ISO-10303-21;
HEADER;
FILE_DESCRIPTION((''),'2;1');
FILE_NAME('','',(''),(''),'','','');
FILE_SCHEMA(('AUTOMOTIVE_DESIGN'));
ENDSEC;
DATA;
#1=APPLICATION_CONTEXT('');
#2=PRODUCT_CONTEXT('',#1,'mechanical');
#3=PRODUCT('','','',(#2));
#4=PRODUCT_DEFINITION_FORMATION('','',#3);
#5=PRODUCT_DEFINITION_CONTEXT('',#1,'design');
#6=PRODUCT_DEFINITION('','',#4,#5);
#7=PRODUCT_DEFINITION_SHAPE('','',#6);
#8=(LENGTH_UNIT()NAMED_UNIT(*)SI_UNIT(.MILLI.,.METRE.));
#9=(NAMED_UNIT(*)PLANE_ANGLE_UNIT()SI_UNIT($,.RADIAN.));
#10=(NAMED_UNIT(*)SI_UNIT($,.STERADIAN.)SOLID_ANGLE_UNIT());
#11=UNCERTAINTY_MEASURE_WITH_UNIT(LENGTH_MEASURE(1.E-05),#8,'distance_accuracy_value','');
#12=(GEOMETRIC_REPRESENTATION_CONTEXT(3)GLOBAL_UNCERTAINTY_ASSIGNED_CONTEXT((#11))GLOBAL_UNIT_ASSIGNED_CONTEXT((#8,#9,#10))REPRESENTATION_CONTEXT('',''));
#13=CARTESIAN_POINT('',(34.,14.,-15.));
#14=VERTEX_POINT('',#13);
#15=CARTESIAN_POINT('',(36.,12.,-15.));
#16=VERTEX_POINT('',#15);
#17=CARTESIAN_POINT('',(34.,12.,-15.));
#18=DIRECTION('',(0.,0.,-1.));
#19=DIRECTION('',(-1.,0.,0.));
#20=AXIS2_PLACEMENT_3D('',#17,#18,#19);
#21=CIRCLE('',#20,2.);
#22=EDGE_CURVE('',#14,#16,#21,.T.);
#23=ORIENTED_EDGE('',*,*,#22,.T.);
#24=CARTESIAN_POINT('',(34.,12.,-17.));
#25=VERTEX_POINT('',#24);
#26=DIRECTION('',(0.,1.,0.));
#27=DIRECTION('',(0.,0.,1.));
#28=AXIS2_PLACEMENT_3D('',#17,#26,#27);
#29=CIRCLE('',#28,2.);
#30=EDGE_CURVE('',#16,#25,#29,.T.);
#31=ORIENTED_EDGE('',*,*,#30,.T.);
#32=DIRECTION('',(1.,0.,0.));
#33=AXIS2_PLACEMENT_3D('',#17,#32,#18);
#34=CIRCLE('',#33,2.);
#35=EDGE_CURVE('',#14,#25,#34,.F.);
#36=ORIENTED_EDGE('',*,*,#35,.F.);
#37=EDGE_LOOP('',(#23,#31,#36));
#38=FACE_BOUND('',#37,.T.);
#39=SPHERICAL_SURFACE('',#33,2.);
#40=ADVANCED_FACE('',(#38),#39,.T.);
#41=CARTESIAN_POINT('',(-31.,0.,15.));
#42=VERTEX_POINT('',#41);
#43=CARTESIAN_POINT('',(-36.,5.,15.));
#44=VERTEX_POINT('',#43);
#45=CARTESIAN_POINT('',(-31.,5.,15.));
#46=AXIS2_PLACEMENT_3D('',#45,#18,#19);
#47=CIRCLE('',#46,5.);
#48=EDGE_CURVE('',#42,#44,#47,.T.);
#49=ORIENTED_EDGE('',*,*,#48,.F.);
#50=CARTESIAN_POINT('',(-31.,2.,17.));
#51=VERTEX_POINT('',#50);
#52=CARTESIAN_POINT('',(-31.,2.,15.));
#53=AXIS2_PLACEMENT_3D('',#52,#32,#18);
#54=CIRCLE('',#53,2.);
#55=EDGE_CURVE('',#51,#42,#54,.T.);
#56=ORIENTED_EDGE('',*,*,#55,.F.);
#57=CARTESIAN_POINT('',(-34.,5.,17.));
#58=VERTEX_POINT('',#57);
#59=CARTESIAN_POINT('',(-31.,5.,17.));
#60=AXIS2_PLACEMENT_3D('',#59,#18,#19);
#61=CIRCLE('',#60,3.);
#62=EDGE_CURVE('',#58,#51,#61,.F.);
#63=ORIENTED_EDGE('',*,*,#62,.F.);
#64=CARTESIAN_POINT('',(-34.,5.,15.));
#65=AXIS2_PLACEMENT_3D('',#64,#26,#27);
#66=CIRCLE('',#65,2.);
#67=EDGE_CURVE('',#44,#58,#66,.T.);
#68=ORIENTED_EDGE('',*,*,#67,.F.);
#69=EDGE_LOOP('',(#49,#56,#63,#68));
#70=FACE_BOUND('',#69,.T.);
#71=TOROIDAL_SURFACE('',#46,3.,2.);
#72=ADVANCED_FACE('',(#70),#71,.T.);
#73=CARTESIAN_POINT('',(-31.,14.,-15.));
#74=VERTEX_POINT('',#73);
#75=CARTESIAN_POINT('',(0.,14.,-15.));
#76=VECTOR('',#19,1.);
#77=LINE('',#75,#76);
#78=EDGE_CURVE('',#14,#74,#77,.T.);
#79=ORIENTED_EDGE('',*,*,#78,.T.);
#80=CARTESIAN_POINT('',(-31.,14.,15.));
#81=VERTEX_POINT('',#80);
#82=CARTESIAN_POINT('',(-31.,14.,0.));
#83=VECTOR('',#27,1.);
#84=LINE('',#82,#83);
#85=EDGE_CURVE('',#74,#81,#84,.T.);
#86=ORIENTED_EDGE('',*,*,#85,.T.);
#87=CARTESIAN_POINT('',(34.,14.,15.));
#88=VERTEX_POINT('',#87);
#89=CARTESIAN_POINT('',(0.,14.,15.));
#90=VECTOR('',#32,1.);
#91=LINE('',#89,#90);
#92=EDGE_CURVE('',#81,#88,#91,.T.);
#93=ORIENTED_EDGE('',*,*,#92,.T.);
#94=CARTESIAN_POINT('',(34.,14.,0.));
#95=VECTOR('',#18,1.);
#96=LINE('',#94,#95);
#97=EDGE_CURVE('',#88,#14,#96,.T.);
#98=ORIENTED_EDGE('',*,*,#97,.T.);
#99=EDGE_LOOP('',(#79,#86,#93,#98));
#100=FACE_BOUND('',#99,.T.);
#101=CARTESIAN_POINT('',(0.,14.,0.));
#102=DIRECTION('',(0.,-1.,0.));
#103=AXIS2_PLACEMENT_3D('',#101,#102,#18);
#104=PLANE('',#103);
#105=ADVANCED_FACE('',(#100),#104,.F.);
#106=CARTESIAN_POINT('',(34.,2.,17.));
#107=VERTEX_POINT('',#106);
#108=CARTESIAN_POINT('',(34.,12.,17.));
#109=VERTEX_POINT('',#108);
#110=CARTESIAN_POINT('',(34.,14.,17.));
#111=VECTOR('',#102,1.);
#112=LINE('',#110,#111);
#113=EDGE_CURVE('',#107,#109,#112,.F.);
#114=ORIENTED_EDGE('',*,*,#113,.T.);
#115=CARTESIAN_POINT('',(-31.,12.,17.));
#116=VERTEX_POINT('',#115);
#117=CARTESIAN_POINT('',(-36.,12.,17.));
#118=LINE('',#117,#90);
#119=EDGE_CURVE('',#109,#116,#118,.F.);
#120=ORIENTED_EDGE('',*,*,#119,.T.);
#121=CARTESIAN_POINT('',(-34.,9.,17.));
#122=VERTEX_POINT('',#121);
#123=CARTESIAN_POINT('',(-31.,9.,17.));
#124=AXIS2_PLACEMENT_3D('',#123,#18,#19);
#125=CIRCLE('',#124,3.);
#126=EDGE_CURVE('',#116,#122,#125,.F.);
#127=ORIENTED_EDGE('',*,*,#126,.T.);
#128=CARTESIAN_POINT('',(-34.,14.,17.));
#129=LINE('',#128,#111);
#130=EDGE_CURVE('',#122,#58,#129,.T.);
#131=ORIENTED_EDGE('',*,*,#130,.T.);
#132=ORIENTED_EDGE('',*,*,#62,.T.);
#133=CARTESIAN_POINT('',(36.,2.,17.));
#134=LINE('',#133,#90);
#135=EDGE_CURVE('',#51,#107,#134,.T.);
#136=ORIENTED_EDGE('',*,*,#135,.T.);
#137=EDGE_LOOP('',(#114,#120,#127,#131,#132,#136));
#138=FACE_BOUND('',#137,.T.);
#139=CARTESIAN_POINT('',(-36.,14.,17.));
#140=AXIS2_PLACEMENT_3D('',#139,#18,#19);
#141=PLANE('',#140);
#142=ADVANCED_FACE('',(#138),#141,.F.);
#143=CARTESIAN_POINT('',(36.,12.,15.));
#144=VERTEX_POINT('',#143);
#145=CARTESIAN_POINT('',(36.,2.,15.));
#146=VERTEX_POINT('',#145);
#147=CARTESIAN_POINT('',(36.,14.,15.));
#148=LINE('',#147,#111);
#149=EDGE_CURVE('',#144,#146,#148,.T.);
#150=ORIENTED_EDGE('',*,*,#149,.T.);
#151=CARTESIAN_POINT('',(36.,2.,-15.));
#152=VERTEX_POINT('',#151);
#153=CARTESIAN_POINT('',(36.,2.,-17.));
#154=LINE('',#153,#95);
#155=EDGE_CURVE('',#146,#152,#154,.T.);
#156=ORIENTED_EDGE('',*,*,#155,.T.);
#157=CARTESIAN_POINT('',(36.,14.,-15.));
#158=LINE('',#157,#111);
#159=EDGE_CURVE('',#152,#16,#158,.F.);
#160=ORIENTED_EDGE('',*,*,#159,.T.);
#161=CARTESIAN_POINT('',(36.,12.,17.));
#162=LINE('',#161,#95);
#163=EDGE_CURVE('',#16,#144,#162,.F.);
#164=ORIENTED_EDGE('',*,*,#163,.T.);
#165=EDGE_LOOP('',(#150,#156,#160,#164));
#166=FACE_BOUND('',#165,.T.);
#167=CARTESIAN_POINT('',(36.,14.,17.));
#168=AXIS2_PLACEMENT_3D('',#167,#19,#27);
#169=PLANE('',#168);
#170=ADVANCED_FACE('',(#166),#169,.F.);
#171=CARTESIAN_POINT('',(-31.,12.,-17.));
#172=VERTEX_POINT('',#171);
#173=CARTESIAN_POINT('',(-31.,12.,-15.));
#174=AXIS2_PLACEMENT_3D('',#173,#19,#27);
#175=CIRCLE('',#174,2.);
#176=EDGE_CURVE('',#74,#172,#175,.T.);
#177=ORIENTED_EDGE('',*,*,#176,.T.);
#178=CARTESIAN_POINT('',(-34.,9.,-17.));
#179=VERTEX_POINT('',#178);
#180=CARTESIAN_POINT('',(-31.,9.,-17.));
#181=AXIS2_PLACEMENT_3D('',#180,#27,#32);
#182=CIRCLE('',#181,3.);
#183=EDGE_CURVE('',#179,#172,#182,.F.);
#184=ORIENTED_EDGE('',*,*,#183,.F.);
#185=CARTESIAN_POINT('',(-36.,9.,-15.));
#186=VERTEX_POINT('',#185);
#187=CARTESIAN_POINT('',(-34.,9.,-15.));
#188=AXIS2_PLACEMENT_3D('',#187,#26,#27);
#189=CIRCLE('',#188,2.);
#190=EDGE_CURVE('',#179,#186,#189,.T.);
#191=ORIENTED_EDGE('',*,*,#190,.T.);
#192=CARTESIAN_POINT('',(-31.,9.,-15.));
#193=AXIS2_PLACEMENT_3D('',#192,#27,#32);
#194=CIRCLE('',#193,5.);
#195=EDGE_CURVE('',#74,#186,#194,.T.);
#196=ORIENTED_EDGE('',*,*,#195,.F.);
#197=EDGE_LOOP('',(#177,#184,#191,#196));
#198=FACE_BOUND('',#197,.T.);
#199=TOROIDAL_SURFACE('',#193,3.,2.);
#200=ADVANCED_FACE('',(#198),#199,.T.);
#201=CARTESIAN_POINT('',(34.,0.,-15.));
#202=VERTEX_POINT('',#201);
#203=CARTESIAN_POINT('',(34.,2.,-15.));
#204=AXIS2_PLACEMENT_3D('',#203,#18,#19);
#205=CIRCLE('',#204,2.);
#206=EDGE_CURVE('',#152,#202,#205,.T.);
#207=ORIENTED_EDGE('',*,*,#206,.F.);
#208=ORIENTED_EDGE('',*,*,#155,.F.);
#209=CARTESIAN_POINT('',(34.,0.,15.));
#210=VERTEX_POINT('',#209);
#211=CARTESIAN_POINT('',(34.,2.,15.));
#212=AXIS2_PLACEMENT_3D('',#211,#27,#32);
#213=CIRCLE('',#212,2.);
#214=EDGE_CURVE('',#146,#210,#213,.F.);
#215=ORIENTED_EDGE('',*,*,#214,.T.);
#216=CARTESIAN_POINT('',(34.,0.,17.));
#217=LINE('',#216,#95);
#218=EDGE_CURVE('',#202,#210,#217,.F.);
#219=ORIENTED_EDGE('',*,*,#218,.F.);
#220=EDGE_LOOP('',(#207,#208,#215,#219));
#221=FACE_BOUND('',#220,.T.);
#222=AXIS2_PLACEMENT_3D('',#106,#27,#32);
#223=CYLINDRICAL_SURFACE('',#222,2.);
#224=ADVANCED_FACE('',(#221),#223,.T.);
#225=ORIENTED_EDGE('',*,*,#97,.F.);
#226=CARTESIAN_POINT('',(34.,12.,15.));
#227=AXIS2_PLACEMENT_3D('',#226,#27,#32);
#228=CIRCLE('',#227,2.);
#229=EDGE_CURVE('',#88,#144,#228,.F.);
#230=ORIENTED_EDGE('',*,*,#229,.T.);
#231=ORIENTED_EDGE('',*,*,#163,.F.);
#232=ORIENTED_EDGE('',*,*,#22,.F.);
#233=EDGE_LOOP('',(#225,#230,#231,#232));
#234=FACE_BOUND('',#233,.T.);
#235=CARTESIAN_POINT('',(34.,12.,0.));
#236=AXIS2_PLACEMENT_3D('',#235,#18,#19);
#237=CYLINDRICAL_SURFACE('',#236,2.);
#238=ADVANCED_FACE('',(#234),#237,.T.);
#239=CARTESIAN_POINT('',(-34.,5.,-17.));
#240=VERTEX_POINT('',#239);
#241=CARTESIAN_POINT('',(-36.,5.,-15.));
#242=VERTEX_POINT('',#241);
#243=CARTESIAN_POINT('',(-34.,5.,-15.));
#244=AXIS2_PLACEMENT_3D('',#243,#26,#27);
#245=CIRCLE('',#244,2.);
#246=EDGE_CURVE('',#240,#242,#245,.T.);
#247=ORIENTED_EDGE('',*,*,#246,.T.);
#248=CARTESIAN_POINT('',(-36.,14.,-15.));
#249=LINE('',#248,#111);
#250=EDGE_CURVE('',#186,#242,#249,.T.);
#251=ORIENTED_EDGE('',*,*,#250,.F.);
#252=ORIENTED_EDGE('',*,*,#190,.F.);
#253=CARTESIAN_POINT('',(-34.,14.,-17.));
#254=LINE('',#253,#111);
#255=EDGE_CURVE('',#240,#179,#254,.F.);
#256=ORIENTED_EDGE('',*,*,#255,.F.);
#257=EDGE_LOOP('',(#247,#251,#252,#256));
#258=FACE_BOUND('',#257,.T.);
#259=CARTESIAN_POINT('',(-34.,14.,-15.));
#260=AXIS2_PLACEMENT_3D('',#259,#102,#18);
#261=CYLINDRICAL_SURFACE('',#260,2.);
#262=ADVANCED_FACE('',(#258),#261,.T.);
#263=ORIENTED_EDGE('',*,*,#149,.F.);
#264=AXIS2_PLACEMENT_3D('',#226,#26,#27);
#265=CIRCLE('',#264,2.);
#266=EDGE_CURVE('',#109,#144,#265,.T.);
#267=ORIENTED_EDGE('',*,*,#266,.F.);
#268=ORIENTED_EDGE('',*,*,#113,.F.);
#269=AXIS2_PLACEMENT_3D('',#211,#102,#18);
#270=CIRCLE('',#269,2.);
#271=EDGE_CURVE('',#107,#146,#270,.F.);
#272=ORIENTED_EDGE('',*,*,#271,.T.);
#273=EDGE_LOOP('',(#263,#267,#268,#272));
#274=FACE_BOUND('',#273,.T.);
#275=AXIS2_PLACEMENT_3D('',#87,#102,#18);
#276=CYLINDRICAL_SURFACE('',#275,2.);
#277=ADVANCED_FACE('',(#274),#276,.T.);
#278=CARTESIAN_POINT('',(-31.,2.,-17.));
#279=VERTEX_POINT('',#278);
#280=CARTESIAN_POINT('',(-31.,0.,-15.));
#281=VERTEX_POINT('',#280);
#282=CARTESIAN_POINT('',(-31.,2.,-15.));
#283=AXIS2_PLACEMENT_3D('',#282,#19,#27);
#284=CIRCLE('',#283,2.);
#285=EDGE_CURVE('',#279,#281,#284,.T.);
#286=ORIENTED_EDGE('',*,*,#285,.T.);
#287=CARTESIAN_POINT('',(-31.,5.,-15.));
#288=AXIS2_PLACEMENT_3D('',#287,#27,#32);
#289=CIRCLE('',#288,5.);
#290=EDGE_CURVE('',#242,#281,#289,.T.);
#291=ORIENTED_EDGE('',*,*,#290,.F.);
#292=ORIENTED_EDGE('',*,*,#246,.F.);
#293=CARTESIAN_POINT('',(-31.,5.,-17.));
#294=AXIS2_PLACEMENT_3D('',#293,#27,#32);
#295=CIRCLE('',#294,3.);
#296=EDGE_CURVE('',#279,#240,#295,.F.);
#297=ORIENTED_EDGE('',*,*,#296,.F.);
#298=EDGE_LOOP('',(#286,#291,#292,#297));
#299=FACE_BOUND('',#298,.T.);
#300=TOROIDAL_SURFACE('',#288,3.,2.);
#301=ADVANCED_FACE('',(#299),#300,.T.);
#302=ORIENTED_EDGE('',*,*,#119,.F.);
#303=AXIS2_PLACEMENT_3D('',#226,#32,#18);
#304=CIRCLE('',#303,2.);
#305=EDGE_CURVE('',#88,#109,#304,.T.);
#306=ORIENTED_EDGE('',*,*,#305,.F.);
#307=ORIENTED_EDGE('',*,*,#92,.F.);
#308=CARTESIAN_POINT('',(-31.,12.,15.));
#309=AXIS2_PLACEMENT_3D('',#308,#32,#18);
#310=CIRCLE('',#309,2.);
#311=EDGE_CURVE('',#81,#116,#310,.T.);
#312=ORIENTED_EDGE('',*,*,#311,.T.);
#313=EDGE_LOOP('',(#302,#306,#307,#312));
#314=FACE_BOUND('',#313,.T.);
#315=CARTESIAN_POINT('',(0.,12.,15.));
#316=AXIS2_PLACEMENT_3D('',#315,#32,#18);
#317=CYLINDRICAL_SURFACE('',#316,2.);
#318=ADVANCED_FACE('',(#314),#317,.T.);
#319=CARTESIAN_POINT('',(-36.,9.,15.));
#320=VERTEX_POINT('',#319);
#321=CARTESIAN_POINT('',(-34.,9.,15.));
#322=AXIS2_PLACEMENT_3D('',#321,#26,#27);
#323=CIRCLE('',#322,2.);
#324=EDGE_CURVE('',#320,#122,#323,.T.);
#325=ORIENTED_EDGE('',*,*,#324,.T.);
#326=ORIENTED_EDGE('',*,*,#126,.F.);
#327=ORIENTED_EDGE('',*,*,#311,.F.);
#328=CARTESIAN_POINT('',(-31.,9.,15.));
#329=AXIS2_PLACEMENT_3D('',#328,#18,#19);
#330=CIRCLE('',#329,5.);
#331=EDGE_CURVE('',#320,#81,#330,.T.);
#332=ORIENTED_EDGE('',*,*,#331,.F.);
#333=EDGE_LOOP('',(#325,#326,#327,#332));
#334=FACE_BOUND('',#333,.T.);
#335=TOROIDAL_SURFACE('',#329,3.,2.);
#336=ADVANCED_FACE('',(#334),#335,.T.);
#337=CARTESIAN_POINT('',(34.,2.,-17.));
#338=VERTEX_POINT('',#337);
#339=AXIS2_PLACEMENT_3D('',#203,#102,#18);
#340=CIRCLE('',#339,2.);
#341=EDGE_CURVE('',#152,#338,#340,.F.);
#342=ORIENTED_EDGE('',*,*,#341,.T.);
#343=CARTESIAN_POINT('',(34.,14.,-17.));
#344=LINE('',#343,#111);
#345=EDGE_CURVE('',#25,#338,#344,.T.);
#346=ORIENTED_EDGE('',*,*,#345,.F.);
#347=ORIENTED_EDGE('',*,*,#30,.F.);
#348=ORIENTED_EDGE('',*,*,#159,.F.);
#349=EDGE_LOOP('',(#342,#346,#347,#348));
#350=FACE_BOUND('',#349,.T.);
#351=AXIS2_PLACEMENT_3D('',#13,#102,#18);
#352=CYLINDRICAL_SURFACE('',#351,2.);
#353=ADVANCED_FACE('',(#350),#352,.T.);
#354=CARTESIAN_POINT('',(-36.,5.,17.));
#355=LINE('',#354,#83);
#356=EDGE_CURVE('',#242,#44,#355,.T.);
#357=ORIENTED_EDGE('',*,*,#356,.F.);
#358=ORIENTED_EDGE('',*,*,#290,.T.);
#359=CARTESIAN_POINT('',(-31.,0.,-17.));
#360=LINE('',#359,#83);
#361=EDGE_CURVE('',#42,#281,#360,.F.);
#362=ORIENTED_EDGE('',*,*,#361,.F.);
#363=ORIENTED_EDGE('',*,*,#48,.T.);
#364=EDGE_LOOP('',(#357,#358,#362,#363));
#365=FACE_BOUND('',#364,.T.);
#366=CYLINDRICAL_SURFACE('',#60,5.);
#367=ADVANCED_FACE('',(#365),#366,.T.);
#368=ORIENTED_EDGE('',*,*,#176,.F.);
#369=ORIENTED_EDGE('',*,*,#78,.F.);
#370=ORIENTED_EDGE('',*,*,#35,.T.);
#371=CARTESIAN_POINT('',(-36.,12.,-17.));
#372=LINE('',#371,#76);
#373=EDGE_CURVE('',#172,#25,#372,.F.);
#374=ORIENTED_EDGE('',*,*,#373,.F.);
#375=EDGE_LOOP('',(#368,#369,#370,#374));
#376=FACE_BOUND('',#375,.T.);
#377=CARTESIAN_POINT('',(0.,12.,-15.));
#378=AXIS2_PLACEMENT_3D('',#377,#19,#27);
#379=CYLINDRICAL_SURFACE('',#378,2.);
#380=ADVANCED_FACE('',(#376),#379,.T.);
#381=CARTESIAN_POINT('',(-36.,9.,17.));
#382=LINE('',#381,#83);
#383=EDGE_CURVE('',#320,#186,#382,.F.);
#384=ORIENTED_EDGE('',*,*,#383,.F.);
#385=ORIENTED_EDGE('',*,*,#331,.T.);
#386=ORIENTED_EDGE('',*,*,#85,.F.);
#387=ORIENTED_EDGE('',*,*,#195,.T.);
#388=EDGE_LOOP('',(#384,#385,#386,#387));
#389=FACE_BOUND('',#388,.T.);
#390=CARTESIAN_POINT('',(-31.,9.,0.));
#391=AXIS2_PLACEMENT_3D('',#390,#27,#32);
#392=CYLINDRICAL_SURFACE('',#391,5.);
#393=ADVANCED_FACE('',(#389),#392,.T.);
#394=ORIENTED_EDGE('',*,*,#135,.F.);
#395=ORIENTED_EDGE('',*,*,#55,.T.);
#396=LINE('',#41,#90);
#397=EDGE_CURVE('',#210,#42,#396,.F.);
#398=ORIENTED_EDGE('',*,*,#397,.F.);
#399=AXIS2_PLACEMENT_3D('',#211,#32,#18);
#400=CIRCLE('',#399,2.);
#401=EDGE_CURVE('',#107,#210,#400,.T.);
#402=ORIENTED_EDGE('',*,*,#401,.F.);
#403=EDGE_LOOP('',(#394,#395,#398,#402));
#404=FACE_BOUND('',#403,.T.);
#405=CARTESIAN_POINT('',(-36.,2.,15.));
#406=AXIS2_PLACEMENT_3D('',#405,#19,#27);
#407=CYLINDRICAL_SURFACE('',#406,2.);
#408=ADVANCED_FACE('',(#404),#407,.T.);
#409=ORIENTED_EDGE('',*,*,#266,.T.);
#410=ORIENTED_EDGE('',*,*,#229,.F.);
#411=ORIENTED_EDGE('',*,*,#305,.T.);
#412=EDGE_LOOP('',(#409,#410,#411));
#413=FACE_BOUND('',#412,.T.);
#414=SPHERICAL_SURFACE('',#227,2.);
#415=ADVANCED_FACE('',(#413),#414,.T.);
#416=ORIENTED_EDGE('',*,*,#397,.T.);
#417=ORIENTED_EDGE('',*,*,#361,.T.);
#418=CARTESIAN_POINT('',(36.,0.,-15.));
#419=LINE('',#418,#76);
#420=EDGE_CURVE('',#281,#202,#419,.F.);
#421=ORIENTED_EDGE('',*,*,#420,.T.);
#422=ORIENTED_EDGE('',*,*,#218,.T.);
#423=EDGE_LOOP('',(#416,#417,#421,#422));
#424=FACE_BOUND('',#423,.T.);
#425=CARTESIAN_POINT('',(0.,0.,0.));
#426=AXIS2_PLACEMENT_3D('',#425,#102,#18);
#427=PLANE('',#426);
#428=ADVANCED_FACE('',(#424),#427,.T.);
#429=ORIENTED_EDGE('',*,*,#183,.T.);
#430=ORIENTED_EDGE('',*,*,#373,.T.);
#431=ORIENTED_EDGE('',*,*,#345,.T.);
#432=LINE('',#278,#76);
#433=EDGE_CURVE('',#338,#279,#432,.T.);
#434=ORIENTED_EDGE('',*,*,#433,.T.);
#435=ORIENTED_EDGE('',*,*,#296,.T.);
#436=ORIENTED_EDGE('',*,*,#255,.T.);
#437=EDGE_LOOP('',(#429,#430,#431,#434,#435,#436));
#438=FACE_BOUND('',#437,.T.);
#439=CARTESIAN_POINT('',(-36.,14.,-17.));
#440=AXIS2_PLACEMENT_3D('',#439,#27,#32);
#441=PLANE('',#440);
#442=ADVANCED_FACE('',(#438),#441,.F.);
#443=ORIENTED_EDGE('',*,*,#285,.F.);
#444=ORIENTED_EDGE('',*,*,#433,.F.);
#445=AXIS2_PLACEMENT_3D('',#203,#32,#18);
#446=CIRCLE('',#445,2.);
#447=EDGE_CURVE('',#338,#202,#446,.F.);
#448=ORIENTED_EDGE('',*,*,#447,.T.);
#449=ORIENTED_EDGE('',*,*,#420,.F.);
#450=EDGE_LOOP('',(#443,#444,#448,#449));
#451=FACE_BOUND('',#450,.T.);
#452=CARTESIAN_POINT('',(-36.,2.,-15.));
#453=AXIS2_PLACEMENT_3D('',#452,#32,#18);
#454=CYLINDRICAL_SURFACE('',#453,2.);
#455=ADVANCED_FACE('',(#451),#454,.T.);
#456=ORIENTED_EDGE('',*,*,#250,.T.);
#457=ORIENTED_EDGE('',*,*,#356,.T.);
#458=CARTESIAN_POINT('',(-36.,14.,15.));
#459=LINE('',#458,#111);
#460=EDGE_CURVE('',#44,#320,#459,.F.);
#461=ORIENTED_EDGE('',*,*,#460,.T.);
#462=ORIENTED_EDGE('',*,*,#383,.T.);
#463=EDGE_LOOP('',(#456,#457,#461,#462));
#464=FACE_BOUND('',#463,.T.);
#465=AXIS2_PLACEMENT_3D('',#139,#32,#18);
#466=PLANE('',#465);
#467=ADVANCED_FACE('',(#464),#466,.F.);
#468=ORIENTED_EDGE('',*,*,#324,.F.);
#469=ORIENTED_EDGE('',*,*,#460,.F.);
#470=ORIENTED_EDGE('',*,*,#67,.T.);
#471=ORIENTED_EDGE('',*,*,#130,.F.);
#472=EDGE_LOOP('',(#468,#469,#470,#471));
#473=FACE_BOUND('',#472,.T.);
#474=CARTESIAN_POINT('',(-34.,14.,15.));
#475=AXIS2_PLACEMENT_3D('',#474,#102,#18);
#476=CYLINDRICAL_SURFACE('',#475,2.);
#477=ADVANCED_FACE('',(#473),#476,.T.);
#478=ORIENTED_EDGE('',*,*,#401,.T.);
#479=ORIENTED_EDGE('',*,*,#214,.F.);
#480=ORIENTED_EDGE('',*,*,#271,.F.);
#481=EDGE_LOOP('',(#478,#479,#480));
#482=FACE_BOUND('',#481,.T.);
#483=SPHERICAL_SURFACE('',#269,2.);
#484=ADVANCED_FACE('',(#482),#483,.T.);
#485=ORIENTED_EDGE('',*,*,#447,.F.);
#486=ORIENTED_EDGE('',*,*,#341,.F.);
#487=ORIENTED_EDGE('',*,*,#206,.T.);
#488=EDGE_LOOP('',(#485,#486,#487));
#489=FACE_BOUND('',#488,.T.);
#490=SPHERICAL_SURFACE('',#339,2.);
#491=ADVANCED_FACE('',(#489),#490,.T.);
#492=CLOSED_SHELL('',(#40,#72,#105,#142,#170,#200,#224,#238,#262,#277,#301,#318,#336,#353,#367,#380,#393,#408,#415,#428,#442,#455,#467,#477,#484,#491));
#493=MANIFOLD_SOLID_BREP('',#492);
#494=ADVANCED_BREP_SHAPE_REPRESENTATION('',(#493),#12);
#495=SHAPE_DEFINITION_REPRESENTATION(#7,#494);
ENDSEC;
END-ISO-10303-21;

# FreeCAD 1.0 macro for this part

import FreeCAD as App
import Part
import Sketcher
from FreeCAD import Vector


def edges_at(feature, points):
    """Names of the edges that pass closest to the given points."""
    edges = feature.Shape.Edges
    near = lambda p: min(range(len(edges)), key=lambda i: edges[i].distToShape(Part.Vertex(*p))[0])
    return sorted({f"Edge{near(p) + 1}" for p in points})


def add_polygon(sketch, points):
    """Adds a closed chain of lines whose ends are joined by coincident constraints."""
    first, n = sketch.GeometryCount, len(points)
    for a, b in zip(points, points[1:] + points[:1]):
        sketch.addGeometry(Part.LineSegment(App.Vector(*a, 0), App.Vector(*b, 0)), False)
    for i in range(n):
        sketch.addConstraint(Sketcher.Constraint("Coincident", first + i, 2, first + (i + 1) % n, 1))

doc = App.newDocument("Part")
body = doc.addObject("PartDesign::Body", "Body")

sketch1 = doc.addObject("Sketcher::SketchObject", "Sketch")
body.addObject(sketch1)
sketch1.AttachmentSupport = (doc.XZ_Plane, [""])
sketch1.MapMode = "FlatFace"
add_polygon(sketch1, [(-36, -17), (-36, 17), (36, 17), (36, -17)])
sketch1.addConstraint([
    Sketcher.Constraint("Vertical", 0),
    Sketcher.Constraint("Horizontal", 1),
    Sketcher.Constraint("Vertical", 2),
    Sketcher.Constraint("Horizontal", 3),
    Sketcher.Constraint("Symmetric", 0, 2, 2, 2, -1, 1),
    Sketcher.Constraint("DistanceX", 1, 1, 1, 2, 72.0),
    Sketcher.Constraint("DistanceY", 0, 1, 0, 2, 34.0),
])
pad1 = doc.addObject("PartDesign::Pad", "Pad")
body.addObject(pad1)
pad1.Profile = sketch1
pad1.Length = 14
pad1.Reversed = True
doc.recompute()

fillet = doc.addObject("PartDesign::Fillet", "Fillet")
body.addObject(fillet)
fillet.Base = (pad1, edges_at(pad1, [(-36, 14, 0), (-36, 0, 0)]))
fillet.Radius = 5
doc.recompute()

fillet2 = doc.addObject("PartDesign::Fillet", "Fillet001")
body.addObject(fillet2)
fillet2.Base = (fillet, ["Edge1"])
fillet2.UseAllEdges = True
fillet2.Radius = 2

doc.recompute()
